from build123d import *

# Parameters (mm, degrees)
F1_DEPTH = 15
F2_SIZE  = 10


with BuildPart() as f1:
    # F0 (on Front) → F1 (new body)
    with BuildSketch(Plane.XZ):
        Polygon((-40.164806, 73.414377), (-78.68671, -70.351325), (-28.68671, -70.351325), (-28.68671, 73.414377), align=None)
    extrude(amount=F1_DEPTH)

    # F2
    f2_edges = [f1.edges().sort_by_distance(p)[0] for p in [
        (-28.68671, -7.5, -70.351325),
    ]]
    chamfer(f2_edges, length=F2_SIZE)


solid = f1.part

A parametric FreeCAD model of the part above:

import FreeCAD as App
import Part
import Sketcher
from FreeCAD import Vector
Q = App.Units.Quantity


def edges_at(feature, points):
    """Names of the edges that pass closest to the given points."""
    edges = feature.Shape.Edges
    near = lambda p: min(range(len(edges)), key=lambda i: edges[i].distToShape(Part.Vertex(*p))[0])
    return sorted({f"Edge{near(p) + 1}" for p in points})


def add_polygon(sketch, points):
    """Adds a closed chain of lines whose ends are joined by coincident constraints."""
    first, n = sketch.GeometryCount, len(points)
    for a, b in zip(points, points[1:] + points[:1]):
        sketch.addGeometry(Part.LineSegment(App.Vector(*a, 0), App.Vector(*b, 0)), False)
    for i in range(n):
        sketch.addConstraint(Sketcher.Constraint("Coincident", first + i, 2, first + (i + 1) % n, 1))

doc = App.newDocument("Part")
body = doc.addObject("PartDesign::Body", "Body")

# Sketch on XZ plane
sketch1 = body.newObject("Sketcher::SketchObject", "Sketch")
sketch1.AttachmentSupport = (doc.getObject("XZ_Plane"), [""])
sketch1.MapMode = "FlatFace"
add_polygon(sketch1, [(-40, 73), (-79, -70), (-29, -70), (-29, 73)])  # lines 0-3
sketch1.addConstraint(Sketcher.Constraint("Horizontal", 1))
sketch1.addConstraint(Sketcher.Constraint("Vertical", 2))
sketch1.addConstraint(Sketcher.Constraint("Horizontal", 3))
sketch1.addConstraint(Sketcher.Constraint("DistanceX", 1, 1, 1, 2, Q("50 mm")))
sketch1.addConstraint(Sketcher.Constraint("Angle", 0, Q("-105 deg")))
sketch1.addConstraint(Sketcher.Constraint("DistanceY", 2, 1, 2, 2, Q("143.765702 mm")))
sketch1.addConstraint(Sketcher.Constraint("DistanceX", 0, 2, -1, 1, Q("78.68671 mm")))
sketch1.addConstraint(Sketcher.Constraint("DistanceY", 0, 2, -1, 1, Q("70.351325 mm")))
pad1 = body.newObject("PartDesign::Pad", "Pad")
pad1.Profile = sketch1
pad1.Length = 15
doc.recompute()

chamfer = body.newObject("PartDesign::Chamfer", "Chamfer")
chamfer.Base = (pad1, edges_at(pad1, [(-28.687, -7.5, -70.351)]))
chamfer.Size = 10

doc.recompute()
